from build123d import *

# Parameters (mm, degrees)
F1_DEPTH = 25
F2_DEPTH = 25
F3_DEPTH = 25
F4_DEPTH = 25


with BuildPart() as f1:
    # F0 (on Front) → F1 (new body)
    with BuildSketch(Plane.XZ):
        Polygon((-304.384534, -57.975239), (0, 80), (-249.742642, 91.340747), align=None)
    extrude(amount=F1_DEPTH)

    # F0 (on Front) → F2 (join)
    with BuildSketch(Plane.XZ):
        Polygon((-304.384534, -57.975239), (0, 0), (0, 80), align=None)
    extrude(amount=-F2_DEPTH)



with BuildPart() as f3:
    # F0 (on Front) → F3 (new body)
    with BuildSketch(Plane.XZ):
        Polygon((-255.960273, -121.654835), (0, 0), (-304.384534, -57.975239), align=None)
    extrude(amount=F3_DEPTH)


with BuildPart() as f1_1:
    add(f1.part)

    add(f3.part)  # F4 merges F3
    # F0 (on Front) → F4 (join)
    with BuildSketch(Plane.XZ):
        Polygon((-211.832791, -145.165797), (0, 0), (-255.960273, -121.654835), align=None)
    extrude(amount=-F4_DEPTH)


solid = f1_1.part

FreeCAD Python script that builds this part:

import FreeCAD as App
import Part
import Sketcher
Q = App.Units.Quantity


def add_polygon(sketch, points):
    """Adds a closed chain of lines whose ends are joined by coincident constraints."""
    first, n = sketch.GeometryCount, len(points)
    for a, b in zip(points, points[1:] + points[:1]):
        sketch.addGeometry(Part.LineSegment(App.Vector(*a, 0), App.Vector(*b, 0)), False)
    for i in range(n):
        sketch.addConstraint(Sketcher.Constraint("Coincident", first + i, 2, first + (i + 1) % n, 1))

doc = App.newDocument("Part")
body = doc.addObject("PartDesign::Body", "Body")
body.AllowCompound = True

sketch1 = body.newObject("Sketcher::SketchObject", "Sketch")
sketch1.AttachmentSupport = (doc.getObject("XZ_Plane"), [""])
sketch1.MapMode = "FlatFace"
add_polygon(sketch1, [(-304, -58), (0, 80), (-250, 91)])
sketch1.addConstraint([
    Sketcher.Constraint("PointOnObject", 0, 2, -2),
    Sketcher.Constraint("Distance", 1, 250.0),
    Sketcher.Constraint("Distance", 2, 159.0),
    Sketcher.Constraint("DistanceY", -1, 1, 0, 2, 80.0),
    Sketcher.Constraint("Angle", 1, Q("177.4 deg")),
    Sketcher.Constraint("Angle", 2, Q("-110.1 deg")),
])
pad1 = body.newObject("PartDesign::Pad", "Pad")
pad1.Profile = sketch1
pad1.Length = 25

sketch2 = body.newObject("Sketcher::SketchObject", "Sketch001")
sketch2.AttachmentSupport = (doc.getObject("XZ_Plane"), [""])
sketch2.MapMode = "FlatFace"
add_polygon(sketch2, [(-304, -58), (0, 0), (0, 80)])
sketch2.addConstraint([
    Sketcher.Constraint("Vertical", 1),
    Sketcher.Constraint("Coincident", 0, 2, -1, 1),
    Sketcher.Constraint("DistanceY", 1, 1, 1, 2, 80.0),
    Sketcher.Constraint("DistanceY", 2, 2, -1, 1, 57.975239),
    Sketcher.Constraint("Distance", 0, 309.856536),
])
pad2 = body.newObject("PartDesign::Pad", "Pad001")
pad2.Profile = sketch2
pad2.Length = 25
pad2.Reversed = True
body2 = doc.addObject("PartDesign::Body", "Body001")

sketch3 = body2.newObject("Sketcher::SketchObject", "Sketch002")
sketch3.AttachmentSupport = (doc.getObject("XZ_Plane001"), [""])
sketch3.MapMode = "FlatFace"
add_polygon(sketch3, [(-256, -122), (0, 0), (-304, -58)])
sketch3.addConstraint([
    Sketcher.Constraint("Coincident", 0, 2, -1, 1),
    Sketcher.Constraint("Distance", 2, 80.0),
    Sketcher.Constraint("Distance", 0, 283.4),
    Sketcher.Constraint("DistanceY", 1, 2, -1, 1, 57.975239),
    Sketcher.Constraint("DistanceX", 1, 2, 2, 2, 48.424261),
])
pad3 = body2.newObject("PartDesign::Pad", "Pad002")
pad3.Profile = sketch3
pad3.Length = 25
body.AllowCompound = True
doc.recompute()

boolean = body.newObject("PartDesign::Boolean", "Boolean")
boolean.Type = "Fuse"
boolean.addObjects([body2])

sketch4 = body.newObject("Sketcher::SketchObject", "Sketch003")
sketch4.AttachmentSupport = (doc.getObject("XZ_Plane"), [""])
sketch4.MapMode = "FlatFace"
add_polygon(sketch4, [(-212, -145), (0, 0), (-256, -122)])
sketch4.addConstraint([
    Sketcher.Constraint("Coincident", 0, 2, -1, 1),
    Sketcher.Constraint("Distance", 2, 50.0),
    Sketcher.Constraint("Distance", 0, 256.8),
    Sketcher.Constraint("Distance", 1, 283.4),
    Sketcher.Constraint("DistanceX", 2, 2, -1, 1, 211.832791),
])
pad4 = body.newObject("PartDesign::Pad", "Pad003")
pad4.Profile = sketch4
pad4.Length = 25
pad4.Reversed = True

doc.recompute()
